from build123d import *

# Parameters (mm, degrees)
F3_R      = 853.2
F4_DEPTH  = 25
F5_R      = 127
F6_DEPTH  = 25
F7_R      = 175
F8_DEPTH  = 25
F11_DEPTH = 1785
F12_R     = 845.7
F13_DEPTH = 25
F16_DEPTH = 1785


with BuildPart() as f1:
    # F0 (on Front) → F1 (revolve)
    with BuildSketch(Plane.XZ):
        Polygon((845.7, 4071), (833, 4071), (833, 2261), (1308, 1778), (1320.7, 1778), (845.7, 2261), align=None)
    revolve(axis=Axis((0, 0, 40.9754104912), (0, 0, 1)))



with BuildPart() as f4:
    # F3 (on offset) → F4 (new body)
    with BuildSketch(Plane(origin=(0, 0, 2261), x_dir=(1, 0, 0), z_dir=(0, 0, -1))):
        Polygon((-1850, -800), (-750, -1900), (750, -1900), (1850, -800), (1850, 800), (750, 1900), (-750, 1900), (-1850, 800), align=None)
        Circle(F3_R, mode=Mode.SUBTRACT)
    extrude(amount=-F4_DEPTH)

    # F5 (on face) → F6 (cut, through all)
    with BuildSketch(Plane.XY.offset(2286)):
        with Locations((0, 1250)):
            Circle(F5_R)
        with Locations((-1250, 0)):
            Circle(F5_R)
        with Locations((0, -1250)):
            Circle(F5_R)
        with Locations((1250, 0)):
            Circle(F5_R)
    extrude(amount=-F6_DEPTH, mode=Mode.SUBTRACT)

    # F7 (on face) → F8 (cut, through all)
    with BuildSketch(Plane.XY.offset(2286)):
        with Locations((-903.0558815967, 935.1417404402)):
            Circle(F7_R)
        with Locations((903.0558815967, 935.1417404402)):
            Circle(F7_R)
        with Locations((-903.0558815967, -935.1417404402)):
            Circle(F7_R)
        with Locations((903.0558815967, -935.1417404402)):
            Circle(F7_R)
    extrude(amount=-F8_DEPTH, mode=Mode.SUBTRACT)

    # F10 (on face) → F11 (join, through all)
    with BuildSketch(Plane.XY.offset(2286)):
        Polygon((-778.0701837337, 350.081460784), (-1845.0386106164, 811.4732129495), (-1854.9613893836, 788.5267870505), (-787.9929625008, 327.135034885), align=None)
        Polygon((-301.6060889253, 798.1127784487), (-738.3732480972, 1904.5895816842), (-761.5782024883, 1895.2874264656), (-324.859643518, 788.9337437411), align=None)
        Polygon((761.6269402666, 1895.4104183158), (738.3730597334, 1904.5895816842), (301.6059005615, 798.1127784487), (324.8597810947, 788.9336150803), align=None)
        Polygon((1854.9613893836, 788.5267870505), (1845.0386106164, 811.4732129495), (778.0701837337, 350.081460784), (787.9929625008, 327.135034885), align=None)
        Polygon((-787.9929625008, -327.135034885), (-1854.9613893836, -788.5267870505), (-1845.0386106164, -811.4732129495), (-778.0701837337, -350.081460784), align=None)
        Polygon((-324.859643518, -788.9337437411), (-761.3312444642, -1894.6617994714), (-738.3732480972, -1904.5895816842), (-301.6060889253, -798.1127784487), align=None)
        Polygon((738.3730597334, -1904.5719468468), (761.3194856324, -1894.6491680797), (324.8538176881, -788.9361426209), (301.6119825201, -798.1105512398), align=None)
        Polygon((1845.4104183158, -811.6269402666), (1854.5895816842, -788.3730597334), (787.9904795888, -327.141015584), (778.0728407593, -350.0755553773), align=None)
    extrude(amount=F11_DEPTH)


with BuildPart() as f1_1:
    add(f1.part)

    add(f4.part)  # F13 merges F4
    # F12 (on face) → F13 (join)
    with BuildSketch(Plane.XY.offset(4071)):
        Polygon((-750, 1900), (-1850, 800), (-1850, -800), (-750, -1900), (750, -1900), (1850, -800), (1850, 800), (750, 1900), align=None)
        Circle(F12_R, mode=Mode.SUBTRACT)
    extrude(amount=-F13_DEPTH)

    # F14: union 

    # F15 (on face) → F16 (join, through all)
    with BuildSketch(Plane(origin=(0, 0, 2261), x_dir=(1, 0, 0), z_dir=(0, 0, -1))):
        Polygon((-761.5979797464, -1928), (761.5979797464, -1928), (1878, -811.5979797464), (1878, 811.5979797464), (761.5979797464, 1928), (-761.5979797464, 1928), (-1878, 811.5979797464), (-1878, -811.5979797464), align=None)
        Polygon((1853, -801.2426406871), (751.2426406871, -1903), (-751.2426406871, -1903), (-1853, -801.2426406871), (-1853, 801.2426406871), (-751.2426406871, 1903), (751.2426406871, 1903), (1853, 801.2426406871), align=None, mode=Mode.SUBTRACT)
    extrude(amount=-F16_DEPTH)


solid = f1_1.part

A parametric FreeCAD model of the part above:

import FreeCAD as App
import Part
import Sketcher


def add_polygon(sketch, points):
    """Adds a closed chain of lines whose ends are joined by coincident constraints."""
    first, n = sketch.GeometryCount, len(points)
    for a, b in zip(points, points[1:] + points[:1]):
        sketch.addGeometry(Part.LineSegment(App.Vector(*a, 0), App.Vector(*b, 0)), False)
    for i in range(n):
        sketch.addConstraint(Sketcher.Constraint("Coincident", first + i, 2, first + (i + 1) % n, 1))

doc = App.newDocument("Part")
params = doc.addObject("Spreadsheet::Sheet", "Params")
for row, (alias, value) in enumerate([
    ("sketch1_height", "1810 mm"),
    ("sketch1_width", "12.7 mm"),
    ("revolution_angle", "360 deg"),
    ("sketch2_diameter", "1706.4 mm"),
    ("sketch2_width", "1500 mm"),
    ("sketch2_height", "1600 mm"),
    ("pad1_length", "25 mm"),
    ("sketch3_diameter", "254 mm"),
    ("sketch4_diameter", "350 mm"),
    ("sketch5_length", "25 mm"),
    ("pad2_length", "1785 mm"),
    ("sketch6_diameter", "1691.4 mm"),
    ("sketch6_width", "1500 mm"),
    ("sketch6_height", "1600 mm"),
    ("pad3_length", "25 mm"),
    ("pad4_length", "1785 mm"),
], start=1):
    params.set(f"A{row}", alias)
    params.set(f"B{row}", "=" + value)
    params.setAlias(f"B{row}", alias)

body = doc.addObject("PartDesign::Body", "Body")

sketch1 = body.newObject("Sketcher::SketchObject", "Sketch")
sketch1.AttachmentSupport = (doc.getObject("XZ_Plane"), [""])
sketch1.MapMode = "FlatFace"
add_polygon(sketch1, [(846, 4071), (833, 4071), (833, 2261), (1308, 1778), (1321, 1778), (846, 2261)])
sketch1.addConstraint(Sketcher.Constraint("Horizontal", 0))
sketch1.addConstraint(Sketcher.Constraint("Vertical", 1))
sketch1.addConstraint(Sketcher.Constraint("Horizontal", 3))
sketch1.addConstraint(Sketcher.Constraint("Vertical", 5))
sketch1.addConstraint(Sketcher.Constraint("Parallel", 2, 4))
sketch1.addConstraint(Sketcher.Constraint("Horizontal", 1, 2, 4, 2))
sketch1.addConstraint(Sketcher.Constraint("DistanceY", 1, 2, 1, 1, 1810.0))
sketch1.addConstraint(Sketcher.Constraint("DistanceX", 0, 2, 0, 1, 12.7))
sketch1.addConstraint(Sketcher.Constraint("DistanceX", -1, 1, 0, 2, 833.0))
sketch1.addConstraint(Sketcher.Constraint("DistanceY", -1, 1, 0, 2, 4071.0))
sketch1.addConstraint(Sketcher.Constraint("DistanceX", -1, 1, 2, 2, 1308.0))
sketch1.addConstraint(Sketcher.Constraint("DistanceY", -1, 1, 2, 2, 1778.0))
sketch1.setExpression("Constraints[12]", "Params.sketch1_height")
sketch1.setExpression("Constraints[13]", "Params.sketch1_width")
revolution = body.newObject("PartDesign::Revolution", "Revolution")
revolution.Profile = sketch1
revolution.ReferenceAxis = (sketch1, ["V_Axis"])
revolution.setExpression("Angle", "Params.revolution_angle")
body2 = doc.addObject("PartDesign::Body", "Body001")

sketch2 = body2.newObject("Sketcher::SketchObject", "Sketch001")
sketch2.AttachmentSupport = (doc.getObject("XY_Plane001"), [""])
sketch2.MapMode = "FlatFace"
sketch2.AttachmentOffset = App.Placement(App.Vector(0, 0, 2261), App.Rotation())
add_polygon(sketch2, [(-1850, 800), (-750, 1900), (750, 1900), (1850, 800), (1850, -800), (750, -1900), (-750, -1900), (-1850, -800)])
sketch2.addGeometry(Part.Circle(App.Vector(0, 0, 0), App.Vector(0, 0, 1), 853), False)
sketch2.addConstraint(Sketcher.Constraint("Horizontal", 1))
sketch2.addConstraint(Sketcher.Constraint("Vertical", 3))
sketch2.addConstraint(Sketcher.Constraint("Horizontal", 5))
sketch2.addConstraint(Sketcher.Constraint("Vertical", 7))
sketch2.addConstraint(Sketcher.Constraint("Coincident", 8, 3, -1, 1))
sketch2.addConstraint(Sketcher.Constraint("Symmetric", 0, 2, 4, 2, -1, 1))
sketch2.addConstraint(Sketcher.Constraint("Symmetric", 2, 2, 6, 2, -1, 1))
sketch2.addConstraint(Sketcher.Constraint("Perpendicular", 0, 2))
sketch2.addConstraint(Sketcher.Constraint("Perpendicular", 2, 4))
sketch2.addConstraint(Sketcher.Constraint("Perpendicular", 4, 6))
sketch2.addConstraint(Sketcher.Constraint("Horizontal", 3, 2, 6, 2))
sketch2.addConstraint(Sketcher.Constraint("Vertical", 1, 2, 4, 2))
sketch2.addConstraint(Sketcher.Constraint("Diameter", 8, 1706.4))
sketch2.addConstraint(Sketcher.Constraint("DistanceX", 1, 1, 1, 2, 1500.0))
sketch2.addConstraint(Sketcher.Constraint("DistanceY", 3, 2, 3, 1, 1600.0))
sketch2.addConstraint(Sketcher.Constraint("DistanceY", -1, 1, 0, 2, 1900.0))
sketch2.setExpression("Constraints[20]", "Params.sketch2_diameter")
sketch2.setExpression("Constraints[21]", "Params.sketch2_width")
sketch2.setExpression("Constraints[22]", "Params.sketch2_height")
pad1 = body2.newObject("PartDesign::Pad", "Pad")
pad1.Profile = sketch2
pad1.setExpression("Length", "Params.pad1_length")

sketch3 = body2.newObject("Sketcher::SketchObject", "Sketch002")
sketch3.AttachmentSupport = (doc.getObject("XY_Plane001"), [""])
sketch3.MapMode = "FlatFace"
sketch3.AttachmentOffset = App.Placement(App.Vector(0, 0, 2286), App.Rotation())
sketch3.addGeometry(Part.Circle(App.Vector(0, 1250, 0), App.Vector(0, 0, 1), 127), False)
sketch3.addGeometry(Part.Circle(App.Vector(-1250, 0, 0), App.Vector(0, 0, 1), 127), False)
sketch3.addGeometry(Part.Circle(App.Vector(0, -1250, 0), App.Vector(0, 0, 1), 127), False)
sketch3.addGeometry(Part.Circle(App.Vector(1250, 0, 0), App.Vector(0, 0, 1), 127), False)
sketch3.addConstraint(Sketcher.Constraint("Equal", 0, 1))
sketch3.addConstraint(Sketcher.Constraint("Equal", 1, 2))
sketch3.addConstraint(Sketcher.Constraint("Equal", 2, 3))
sketch3.addConstraint(Sketcher.Constraint("Symmetric", 0, 3, 2, 3, -1, 1))
sketch3.addConstraint(Sketcher.Constraint("Symmetric", 1, 3, 3, 3, -1, 1))
sketch3.addConstraint(Sketcher.Constraint("PointOnObject", 0, 3, -2))
sketch3.addConstraint(Sketcher.Constraint("PointOnObject", 1, 3, -1))
sketch3.addConstraint(Sketcher.Constraint("Diameter", 0, 254.0))
sketch3.addConstraint(Sketcher.Constraint("DistanceY", -1, 1, 0, 3, 1250.0))
sketch3.addConstraint(Sketcher.Constraint("DistanceX", 1, 3, -1, 1, 1250.0))
sketch3.setExpression("Constraints[7]", "Params.sketch3_diameter")
pocket1 = body2.newObject("PartDesign::Pocket", "Pocket")
pocket1.Profile = sketch3
pocket1.Type = "ThroughAll"

sketch4 = body2.newObject("Sketcher::SketchObject", "Sketch003")
sketch4.AttachmentSupport = (doc.getObject("XY_Plane001"), [""])
sketch4.MapMode = "FlatFace"
sketch4.AttachmentOffset = App.Placement(App.Vector(0, 0, 2286), App.Rotation())
sketch4.addGeometry(Part.Circle(App.Vector(-903, 935, 0), App.Vector(0, 0, 1), 175), False)
sketch4.addGeometry(Part.Circle(App.Vector(903, 935, 0), App.Vector(0, 0, 1), 175), False)
sketch4.addGeometry(Part.Circle(App.Vector(-903, -935, 0), App.Vector(0, 0, 1), 175), False)
sketch4.addGeometry(Part.Circle(App.Vector(903, -935, 0), App.Vector(0, 0, 1), 175), False)
sketch4.addConstraint(Sketcher.Constraint("Equal", 0, 1))
sketch4.addConstraint(Sketcher.Constraint("Equal", 1, 2))
sketch4.addConstraint(Sketcher.Constraint("Equal", 2, 3))
sketch4.addConstraint(Sketcher.Constraint("Symmetric", 1, 3, 2, 3, -1, 1))
sketch4.addConstraint(Sketcher.Constraint("Symmetric", 0, 3, 3, 3, -1, 1))
sketch4.addConstraint(Sketcher.Constraint("Symmetric", 0, 3, 1, 3, -2))
sketch4.addConstraint(Sketcher.Constraint("Diameter", 0, 350.0))
sketch4.addConstraint(Sketcher.Constraint("DistanceX", 0, 3, -1, 1, 903.055882))
sketch4.addConstraint(Sketcher.Constraint("DistanceY", -1, 1, 0, 3, 935.14174))
sketch4.setExpression("Constraints[6]", "Params.sketch4_diameter")
pocket2 = body2.newObject("PartDesign::Pocket", "Pocket001")
pocket2.Profile = sketch4
pocket2.Type = "ThroughAll"

sketch5 = body2.newObject("Sketcher::SketchObject", "Sketch004")
sketch5.AttachmentSupport = (doc.getObject("XY_Plane001"), [""])
sketch5.MapMode = "FlatFace"
sketch5.AttachmentOffset = App.Placement(App.Vector(0, 0, 2286), App.Rotation())
add_polygon(sketch5, [(-778.070184, 350.081461), (-1845.038611, 811.473213), (-1854.961389, 788.526787), (-787.992963, 327.135035)])
add_polygon(sketch5, [(-301.606089, 798.112778), (-738.373248, 1904.589582), (-761.578202, 1895.287426), (-324.859644, 788.933744)])
add_polygon(sketch5, [(761.62694, 1895.410418), (738.37306, 1904.589582), (301.605901, 798.112778), (324.859781, 788.933615)])
add_polygon(sketch5, [(1854.961389, 788.526787), (1845.038611, 811.473213), (778.070184, 350.081461), (787.992963, 327.135035)])
add_polygon(sketch5, [(-787.992963, -327.135035), (-1854.961389, -788.526787), (-1845.038611, -811.473213), (-778.070184, -350.081461)])
add_polygon(sketch5, [(-324.859644, -788.933744), (-761.331244, -1894.661799), (-738.373248, -1904.589582), (-301.606089, -798.112778)])
add_polygon(sketch5, [(738.37306, -1904.571947), (761.319486, -1894.649168), (324.853818, -788.936143), (301.611983, -798.110551)])
add_polygon(sketch5, [(1845.410418, -811.62694), (1854.589582, -788.37306), (787.99048, -327.141016), (778.072841, -350.075555)])
sketch5.addConstraint(Sketcher.Constraint("Symmetric", 15, 2, 16, 2, -1, 1))
sketch5.addConstraint(Sketcher.Constraint("Symmetric", 12, 2, 17, 2, -1, 1))
sketch5.addConstraint(Sketcher.Constraint("Symmetric", 13, 2, 18, 2, -1, 1))
sketch5.addConstraint(Sketcher.Constraint("Symmetric", 14, 2, 19, 2, -1, 1))
sketch5.addConstraint(Sketcher.Constraint("Symmetric", 0, 2, 12, 2, -2))
sketch5.addConstraint(Sketcher.Constraint("Symmetric", 3, 2, 13, 2, -2))
sketch5.addConstraint(Sketcher.Constraint("Symmetric", 2, 2, 14, 2, -2))
sketch5.addConstraint(Sketcher.Constraint("Symmetric", 1, 2, 15, 2, -2))
sketch5.addConstraint(Sketcher.Constraint("Symmetric", 4, 2, 21, 2, -1))
sketch5.addConstraint(Sketcher.Constraint("Symmetric", 7, 2, 22, 2, -1))
sketch5.addConstraint(Sketcher.Constraint("Symmetric", 6, 2, 23, 2, -1))
sketch5.addConstraint(Sketcher.Constraint("Perpendicular", 0, 1))
sketch5.addConstraint(Sketcher.Constraint("Perpendicular", 1, 2))
sketch5.addConstraint(Sketcher.Constraint("Perpendicular", 2, 3))
sketch5.addConstraint(Sketcher.Constraint("Parallel", 4, 6))
sketch5.addConstraint(Sketcher.Constraint("Perpendicular", 6, 7))
sketch5.addConstraint(Sketcher.Constraint("Perpendicular", 8, 9))
sketch5.addConstraint(Sketcher.Constraint("Perpendicular", 9, 10))
sketch5.addConstraint(Sketcher.Constraint("Perpendicular", 10, 11))
sketch5.addConstraint(Sketcher.Constraint("Parallel", 11, 20))
sketch5.addConstraint(Sketcher.Constraint("Perpendicular", 3, 21))
sketch5.addConstraint(Sketcher.Constraint("Parallel", 20, 22))
sketch5.addConstraint(Sketcher.Constraint("Perpendicular", 19, 24))
sketch5.addConstraint(Sketcher.Constraint("Perpendicular", 7, 25))
sketch5.addConstraint(Sketcher.Constraint("Perpendicular", 25, 26))
sketch5.addConstraint(Sketcher.Constraint("Perpendicular", 26, 27))
sketch5.addConstraint(Sketcher.Constraint("Perpendicular", 23, 28))
sketch5.addConstraint(Sketcher.Constraint("Parallel", 21, 29))
sketch5.addConstraint(Sketcher.Constraint("Perpendicular", 29, 30))
sketch5.addConstraint(Sketcher.Constraint("Perpendicular", 30, 31))
sketch5.addConstraint(Sketcher.Constraint("Horizontal", 4, 2, 8, 2))
sketch5.addConstraint(Sketcher.Constraint("Horizontal", 7, 2, 9, 2))
sketch5.addConstraint(Sketcher.Constraint("Vertical", 8, 2, 27, 2))
sketch5.addConstraint(Sketcher.Constraint("Equal", 3, 5))
sketch5.addConstraint(Sketcher.Constraint("Equal", 5, 8))
sketch5.addConstraint(Sketcher.Constraint("Equal", 19, 24))
sketch5.addConstraint(Sketcher.Constraint("Equal", 24, 28))
sketch5.addConstraint(Sketcher.Constraint("Distance", 1, 25.0))
sketch5.addConstraint(Sketcher.Constraint("DistanceY", 16, 2, 0, 2, 1600.0))
sketch5.addConstraint(Sketcher.Constraint("DistanceX", 18, 2, 25, 2, 1102.924001))
sketch5.addConstraint(Sketcher.Constraint("DistanceX", -1, 1, 9, 2, 301.605901))
sketch5.addConstraint(Sketcher.Constraint("DistanceY", 20, 2, -1, 1, 1894.661799))
sketch5.addConstraint(Sketcher.Constraint("DistanceX", 7, 2, 12, 2, 2146.6447))
sketch5.addConstraint(Sketcher.Constraint("DistanceX", 20, 2, 23, 2, 436.471601))
sketch5.addConstraint(Sketcher.Constraint("DistanceY", 25, 2, 23, 2, 0.002399))
sketch5.addConstraint(Sketcher.Constraint("DistanceX", 26, 2, 28, 2, 1552.977599))
sketch5.addConstraint(Sketcher.Constraint("Distance", 0, 1162.456009))
sketch5.addConstraint(Sketcher.Constraint("Distance", 4, 1189.56146))
sketch5.addConstraint(Sketcher.Constraint("Distance", 7, 24.99965))
sketch5.addConstraint(Sketcher.Constraint("Distance", 20, 1188.75649))
sketch5.addConstraint(Sketcher.Constraint("Distance", 25, 1188.740331))
sketch5.addConstraint(Sketcher.Constraint("Distance", 29, 1162.053632))
sketch5.addConstraint(Sketcher.Constraint("DistanceY", 28, 2, -1, 1, 788.37306))
sketch5.setExpression("Constraints[69]", "Params.sketch5_length")
pad2 = body2.newObject("PartDesign::Pad", "Pad001")
pad2.Profile = sketch5
pad2.setExpression("Length", "Params.pad2_length")
body.AllowCompound = True
doc.recompute()

boolean = body.newObject("PartDesign::Boolean", "Boolean")
boolean.Type = "Fuse"
boolean.addObjects([body2])

sketch6 = body.newObject("Sketcher::SketchObject", "Sketch005")
sketch6.AttachmentSupport = (doc.getObject("XY_Plane"), [""])
sketch6.MapMode = "FlatFace"
sketch6.AttachmentOffset = App.Placement(App.Vector(0, 0, 4071), App.Rotation())
add_polygon(sketch6, [(-750, 1900), (-1850, 800), (-1850, -800), (-750, -1900), (750, -1900), (1850, -800), (1850, 800), (750, 1900)])
sketch6.addGeometry(Part.Circle(App.Vector(0, 0, 0), App.Vector(0, 0, 1), 846), False)
sketch6.addConstraint(Sketcher.Constraint("Vertical", 1))
sketch6.addConstraint(Sketcher.Constraint("Horizontal", 3))
sketch6.addConstraint(Sketcher.Constraint("Vertical", 5))
sketch6.addConstraint(Sketcher.Constraint("Horizontal", 7))
sketch6.addConstraint(Sketcher.Constraint("Coincident", 8, 3, -1, 1))
sketch6.addConstraint(Sketcher.Constraint("Symmetric", 0, 2, 4, 2, -1, 1))
sketch6.addConstraint(Sketcher.Constraint("Symmetric", 2, 2, 6, 2, -1, 1))
sketch6.addConstraint(Sketcher.Constraint("Perpendicular", 0, 2))
sketch6.addConstraint(Sketcher.Constraint("Perpendicular", 2, 4))
sketch6.addConstraint(Sketcher.Constraint("Perpendicular", 4, 6))
sketch6.addConstraint(Sketcher.Constraint("Horizontal", 1, 2, 4, 2))
sketch6.addConstraint(Sketcher.Constraint("Vertical", 3, 2, 6, 2))
sketch6.addConstraint(Sketcher.Constraint("Diameter", 8, 1691.4))
sketch6.addConstraint(Sketcher.Constraint("DistanceX", 3, 1, 3, 2, 1500.0))
sketch6.addConstraint(Sketcher.Constraint("DistanceY", 1, 2, 1, 1, 1600.0))
sketch6.addConstraint(Sketcher.Constraint("DistanceX", 0, 2, -1, 1, 1850.0))
sketch6.setExpression("Constraints[20]", "Params.sketch6_diameter")
sketch6.setExpression("Constraints[21]", "Params.sketch6_width")
sketch6.setExpression("Constraints[22]", "Params.sketch6_height")
pad3 = body.newObject("PartDesign::Pad", "Pad002")
pad3.Profile = sketch6
pad3.setExpression("Length", "Params.pad3_length")
pad3.Reversed = True

sketch7 = body.newObject("Sketcher::SketchObject", "Sketch006")
sketch7.AttachmentSupport = (doc.getObject("XY_Plane"), [""])
sketch7.MapMode = "FlatFace"
sketch7.AttachmentOffset = App.Placement(App.Vector(0, 0, 2261), App.Rotation())
add_polygon(sketch7, [(-762, 1928), (762, 1928), (1878, 812), (1878, -812), (762, -1928), (-762, -1928), (-1878, -812), (-1878, 812)])
add_polygon(sketch7, [(1853, -801), (1853, 801), (751, 1903), (-751, 1903), (-1853, 801), (-1853, -801), (-751, -1903), (751, -1903)])
sketch7.addConstraint(Sketcher.Constraint("Horizontal", 0))
sketch7.addConstraint(Sketcher.Constraint("Vertical", 2))
sketch7.addConstraint(Sketcher.Constraint("Horizontal", 4))
sketch7.addConstraint(Sketcher.Constraint("Vertical", 6))
sketch7.addConstraint(Sketcher.Constraint("Vertical", 8))
sketch7.addConstraint(Sketcher.Constraint("Horizontal", 10))
sketch7.addConstraint(Sketcher.Constraint("Vertical", 12))
sketch7.addConstraint(Sketcher.Constraint("Horizontal", 14))
sketch7.addConstraint(Sketcher.Constraint("Symmetric", 0, 2, 4, 2, -1, 1))
sketch7.addConstraint(Sketcher.Constraint("Symmetric", 1, 2, 5, 2, -1, 1))
sketch7.addConstraint(Sketcher.Constraint("Symmetric", 8, 2, 12, 2, -1, 1))
sketch7.addConstraint(Sketcher.Constraint("Symmetric", 9, 2, 13, 2, -1, 1))
sketch7.addConstraint(Sketcher.Constraint("Perpendicular", 1, 3))
sketch7.addConstraint(Sketcher.Constraint("Perpendicular", 5, 7))
sketch7.addConstraint(Sketcher.Constraint("Perpendicular", 7, 9))
sketch7.addConstraint(Sketcher.Constraint("Perpendicular", 9, 11))
sketch7.addConstraint(Sketcher.Constraint("Perpendicular", 13, 15))
sketch7.addConstraint(Sketcher.Constraint("Horizontal", 2, 2, 5, 2))
sketch7.addConstraint(Sketcher.Constraint("Horizontal", 1, 2, 6, 2))
sketch7.addConstraint(Sketcher.Constraint("Horizontal", 8, 2, 11, 2))
sketch7.addConstraint(Sketcher.Constraint("Horizontal", 12, 2, 15, 2))
sketch7.addConstraint(Sketcher.Constraint("Vertical", 0, 2, 3, 2))
sketch7.addConstraint(Sketcher.Constraint("DistanceY", -1, 1, 0, 2, 1928.0))
sketch7.addConstraint(Sketcher.Constraint("DistanceX", -1, 1, 1, 2, 1878.0))
sketch7.addConstraint(Sketcher.Constraint("DistanceX", -1, 1, 8, 2, 1853.0))
sketch7.addConstraint(Sketcher.Constraint("DistanceY", -1, 1, 9, 2, 1903.0))
sketch7.addConstraint(Sketcher.Constraint("Distance", 9, 1558.1202))
sketch7.addConstraint(Sketcher.Constraint("DistanceX", 0, 1, 0, 2, 1523.195959))
pad4 = body.newObject("PartDesign::Pad", "Pad003")
pad4.Profile = sketch7
pad4.setExpression("Length", "Params.pad4_length")

doc.recompute()
